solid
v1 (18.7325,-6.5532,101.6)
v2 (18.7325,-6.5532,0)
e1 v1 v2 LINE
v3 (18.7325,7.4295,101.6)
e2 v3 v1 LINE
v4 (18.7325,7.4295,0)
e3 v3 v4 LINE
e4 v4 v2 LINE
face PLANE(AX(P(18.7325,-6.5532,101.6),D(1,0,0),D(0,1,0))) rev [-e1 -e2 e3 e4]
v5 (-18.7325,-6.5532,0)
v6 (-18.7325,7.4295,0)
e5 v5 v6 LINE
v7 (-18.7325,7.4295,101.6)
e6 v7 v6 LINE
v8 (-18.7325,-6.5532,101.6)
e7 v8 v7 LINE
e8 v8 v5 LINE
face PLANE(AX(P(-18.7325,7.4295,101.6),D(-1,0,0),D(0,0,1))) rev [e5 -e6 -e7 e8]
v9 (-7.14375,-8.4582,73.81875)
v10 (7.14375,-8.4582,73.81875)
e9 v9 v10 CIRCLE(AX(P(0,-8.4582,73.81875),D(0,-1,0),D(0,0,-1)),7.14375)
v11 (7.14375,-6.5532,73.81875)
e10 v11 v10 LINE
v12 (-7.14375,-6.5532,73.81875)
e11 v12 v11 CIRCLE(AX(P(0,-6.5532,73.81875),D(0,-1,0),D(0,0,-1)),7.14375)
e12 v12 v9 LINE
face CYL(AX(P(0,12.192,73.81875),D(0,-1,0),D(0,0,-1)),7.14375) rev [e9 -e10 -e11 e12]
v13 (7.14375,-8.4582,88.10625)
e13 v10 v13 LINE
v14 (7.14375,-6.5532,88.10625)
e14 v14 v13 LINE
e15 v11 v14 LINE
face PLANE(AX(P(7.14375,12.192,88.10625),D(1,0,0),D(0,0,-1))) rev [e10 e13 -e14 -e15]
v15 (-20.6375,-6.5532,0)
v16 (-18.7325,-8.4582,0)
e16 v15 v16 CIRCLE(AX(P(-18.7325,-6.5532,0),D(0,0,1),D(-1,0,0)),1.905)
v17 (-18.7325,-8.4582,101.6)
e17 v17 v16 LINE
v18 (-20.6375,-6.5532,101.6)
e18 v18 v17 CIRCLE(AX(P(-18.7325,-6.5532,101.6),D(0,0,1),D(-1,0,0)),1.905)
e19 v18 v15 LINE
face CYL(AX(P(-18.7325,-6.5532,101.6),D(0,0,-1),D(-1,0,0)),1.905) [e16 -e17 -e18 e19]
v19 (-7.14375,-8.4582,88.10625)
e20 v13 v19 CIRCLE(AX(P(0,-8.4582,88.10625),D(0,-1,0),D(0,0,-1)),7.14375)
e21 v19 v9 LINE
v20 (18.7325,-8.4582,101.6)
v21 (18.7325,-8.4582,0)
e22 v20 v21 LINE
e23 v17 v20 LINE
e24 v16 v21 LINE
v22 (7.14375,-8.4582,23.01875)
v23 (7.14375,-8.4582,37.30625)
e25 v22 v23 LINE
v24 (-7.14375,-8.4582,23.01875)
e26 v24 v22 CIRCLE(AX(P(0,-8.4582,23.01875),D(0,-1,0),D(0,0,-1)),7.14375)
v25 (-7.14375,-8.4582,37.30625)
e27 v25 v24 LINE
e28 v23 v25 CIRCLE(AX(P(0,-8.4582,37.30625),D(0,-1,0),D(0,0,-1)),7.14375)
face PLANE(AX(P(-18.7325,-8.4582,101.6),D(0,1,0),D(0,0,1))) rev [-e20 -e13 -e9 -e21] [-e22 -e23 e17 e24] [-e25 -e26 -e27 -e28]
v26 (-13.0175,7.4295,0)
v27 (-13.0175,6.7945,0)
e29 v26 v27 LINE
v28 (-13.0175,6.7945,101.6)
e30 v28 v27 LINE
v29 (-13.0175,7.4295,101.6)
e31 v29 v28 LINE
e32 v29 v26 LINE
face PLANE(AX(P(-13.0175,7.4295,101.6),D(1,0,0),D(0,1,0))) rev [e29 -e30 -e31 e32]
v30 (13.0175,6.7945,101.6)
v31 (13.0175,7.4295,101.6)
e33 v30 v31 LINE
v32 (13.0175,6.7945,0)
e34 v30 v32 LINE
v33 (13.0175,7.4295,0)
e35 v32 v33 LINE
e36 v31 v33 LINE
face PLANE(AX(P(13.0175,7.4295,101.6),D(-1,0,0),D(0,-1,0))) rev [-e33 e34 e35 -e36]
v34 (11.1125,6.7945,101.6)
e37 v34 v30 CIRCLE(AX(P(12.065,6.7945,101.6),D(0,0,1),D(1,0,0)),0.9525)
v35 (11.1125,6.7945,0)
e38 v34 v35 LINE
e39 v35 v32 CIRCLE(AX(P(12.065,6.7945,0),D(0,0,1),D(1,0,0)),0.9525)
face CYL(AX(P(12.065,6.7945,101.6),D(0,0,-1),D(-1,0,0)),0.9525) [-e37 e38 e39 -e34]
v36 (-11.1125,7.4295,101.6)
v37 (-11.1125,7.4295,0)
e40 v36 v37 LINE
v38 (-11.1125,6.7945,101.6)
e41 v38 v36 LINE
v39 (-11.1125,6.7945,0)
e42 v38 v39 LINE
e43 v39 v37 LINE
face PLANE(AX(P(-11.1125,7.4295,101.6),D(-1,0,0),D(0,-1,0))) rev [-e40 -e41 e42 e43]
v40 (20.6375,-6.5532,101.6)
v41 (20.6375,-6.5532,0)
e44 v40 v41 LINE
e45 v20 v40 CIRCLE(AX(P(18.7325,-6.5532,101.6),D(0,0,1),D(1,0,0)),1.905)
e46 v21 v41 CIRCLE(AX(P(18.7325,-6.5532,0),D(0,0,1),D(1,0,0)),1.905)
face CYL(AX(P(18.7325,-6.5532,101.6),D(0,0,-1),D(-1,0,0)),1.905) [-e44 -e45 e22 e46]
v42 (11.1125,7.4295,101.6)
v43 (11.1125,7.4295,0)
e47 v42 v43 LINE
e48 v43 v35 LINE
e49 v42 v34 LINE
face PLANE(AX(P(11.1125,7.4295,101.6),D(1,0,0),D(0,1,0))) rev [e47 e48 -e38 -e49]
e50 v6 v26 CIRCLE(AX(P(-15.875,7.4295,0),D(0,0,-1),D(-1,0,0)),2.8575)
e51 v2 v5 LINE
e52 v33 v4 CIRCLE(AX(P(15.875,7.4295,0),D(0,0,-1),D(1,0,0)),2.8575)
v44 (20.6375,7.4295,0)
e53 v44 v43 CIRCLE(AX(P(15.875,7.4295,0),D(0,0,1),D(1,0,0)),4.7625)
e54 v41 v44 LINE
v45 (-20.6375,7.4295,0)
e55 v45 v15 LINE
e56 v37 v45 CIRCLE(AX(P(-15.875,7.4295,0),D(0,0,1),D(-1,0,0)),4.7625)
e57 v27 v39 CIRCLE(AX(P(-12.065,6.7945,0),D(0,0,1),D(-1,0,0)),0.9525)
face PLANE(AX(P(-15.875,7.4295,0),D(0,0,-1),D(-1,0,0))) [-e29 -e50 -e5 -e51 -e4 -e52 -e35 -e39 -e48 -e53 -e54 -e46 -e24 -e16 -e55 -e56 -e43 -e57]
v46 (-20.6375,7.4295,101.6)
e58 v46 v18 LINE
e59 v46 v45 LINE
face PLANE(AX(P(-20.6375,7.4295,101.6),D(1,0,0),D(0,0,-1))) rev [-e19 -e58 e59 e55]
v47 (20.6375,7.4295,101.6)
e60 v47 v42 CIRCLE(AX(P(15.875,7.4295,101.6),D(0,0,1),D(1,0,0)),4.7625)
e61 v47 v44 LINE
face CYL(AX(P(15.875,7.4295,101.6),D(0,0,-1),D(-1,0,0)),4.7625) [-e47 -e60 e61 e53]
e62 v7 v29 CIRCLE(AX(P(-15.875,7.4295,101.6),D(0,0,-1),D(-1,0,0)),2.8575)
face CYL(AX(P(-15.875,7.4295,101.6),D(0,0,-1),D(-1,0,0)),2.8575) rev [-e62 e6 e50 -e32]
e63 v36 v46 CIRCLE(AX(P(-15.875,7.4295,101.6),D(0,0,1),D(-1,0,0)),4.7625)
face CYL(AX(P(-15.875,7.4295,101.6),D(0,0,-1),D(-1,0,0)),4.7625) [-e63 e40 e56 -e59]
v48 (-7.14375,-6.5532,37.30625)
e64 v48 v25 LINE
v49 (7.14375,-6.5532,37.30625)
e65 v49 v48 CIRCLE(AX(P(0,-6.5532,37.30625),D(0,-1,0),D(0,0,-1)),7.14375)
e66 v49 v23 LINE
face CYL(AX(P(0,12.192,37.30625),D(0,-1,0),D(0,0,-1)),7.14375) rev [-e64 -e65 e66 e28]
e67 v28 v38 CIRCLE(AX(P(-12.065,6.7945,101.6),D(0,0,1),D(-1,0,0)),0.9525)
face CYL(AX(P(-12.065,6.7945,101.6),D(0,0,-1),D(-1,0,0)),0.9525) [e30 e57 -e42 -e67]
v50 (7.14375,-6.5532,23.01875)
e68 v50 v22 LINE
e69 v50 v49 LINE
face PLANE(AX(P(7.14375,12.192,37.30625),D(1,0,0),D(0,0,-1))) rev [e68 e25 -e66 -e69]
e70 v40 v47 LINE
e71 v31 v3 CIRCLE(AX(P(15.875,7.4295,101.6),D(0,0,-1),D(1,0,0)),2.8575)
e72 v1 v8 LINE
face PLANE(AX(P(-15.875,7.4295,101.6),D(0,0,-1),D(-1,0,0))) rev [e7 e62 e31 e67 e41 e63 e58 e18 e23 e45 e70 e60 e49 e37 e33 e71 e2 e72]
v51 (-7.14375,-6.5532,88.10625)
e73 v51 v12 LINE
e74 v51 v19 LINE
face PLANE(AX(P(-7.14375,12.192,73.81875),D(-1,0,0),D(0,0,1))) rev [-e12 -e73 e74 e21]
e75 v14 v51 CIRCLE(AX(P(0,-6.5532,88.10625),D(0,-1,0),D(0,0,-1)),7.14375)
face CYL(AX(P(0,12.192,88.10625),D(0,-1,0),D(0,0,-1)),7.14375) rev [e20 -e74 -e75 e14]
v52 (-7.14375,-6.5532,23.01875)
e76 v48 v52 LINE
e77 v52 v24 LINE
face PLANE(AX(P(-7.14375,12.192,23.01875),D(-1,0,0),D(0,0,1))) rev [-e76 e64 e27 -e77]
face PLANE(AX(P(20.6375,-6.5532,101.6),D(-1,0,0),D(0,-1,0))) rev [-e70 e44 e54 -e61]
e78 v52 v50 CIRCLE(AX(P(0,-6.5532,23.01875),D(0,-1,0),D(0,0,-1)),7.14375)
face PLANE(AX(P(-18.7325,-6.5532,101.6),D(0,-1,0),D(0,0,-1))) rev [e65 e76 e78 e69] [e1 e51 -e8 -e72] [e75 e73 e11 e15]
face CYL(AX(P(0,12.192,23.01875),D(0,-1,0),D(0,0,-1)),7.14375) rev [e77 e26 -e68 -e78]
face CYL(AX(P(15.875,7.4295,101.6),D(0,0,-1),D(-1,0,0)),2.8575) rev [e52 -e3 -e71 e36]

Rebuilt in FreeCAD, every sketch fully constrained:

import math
import FreeCAD as App
import Part
import Sketcher

V = App.Vector
Q = App.Units.Quantity

doc = App.newDocument("Part")
body = doc.addObject("PartDesign::Body", "Body")

# Sketch on XY plane
sketch1 = body.newObject("Sketcher::SketchObject", "Sketch")
sketch1.AttachmentSupport = (doc.getObject("XY_Plane"), [""])
sketch1.MapMode = "FlatFace"
sketch1.addGeometry(Part.LineSegment(V(-20.6, 7.4, 0), V(-20.6, -6.6, 0)), False)
sketch1.addGeometry(Part.ArcOfCircle(Part.Circle(V(-18.7, -6.6, 0), V(0, 0, 1), 1.9), math.radians(-180), math.radians(-90)), False)
sketch1.addGeometry(Part.LineSegment(V(-18.7, -8.5, 0), V(18.7, -8.5, 0)), False)
sketch1.addGeometry(Part.ArcOfCircle(Part.Circle(V(18.7, -6.6, 0), V(0, 0, 1), 1.9), math.radians(-90), math.radians(0)), False)
sketch1.addGeometry(Part.LineSegment(V(20.6, -6.6, 0), V(20.6, 7.4, 0)), False)
sketch1.addGeometry(Part.ArcOfCircle(Part.Circle(V(15.9, 7.4, 0), V(0, 0, 1), 4.8), math.radians(0), math.radians(180)), False)
sketch1.addGeometry(Part.LineSegment(V(11.1, 7.4, 0), V(11.1, 6.8, 0)), False)
sketch1.addGeometry(Part.ArcOfCircle(Part.Circle(V(12.1, 6.8, 0), V(0, 0, 1), 1), math.radians(180), math.radians(360)), False)
sketch1.addGeometry(Part.LineSegment(V(13, 6.8, 0), V(13, 7.4, 0)), False)
sketch1.addGeometry(Part.ArcOfCircle(Part.Circle(V(15.9, 7.4, 0), V(0, 0, 1), 2.9), math.radians(0), math.radians(180)), False)
sketch1.addGeometry(Part.LineSegment(V(18.7, 7.4, 0), V(18.7, -6.6, 0)), False)
sketch1.addGeometry(Part.LineSegment(V(18.7, -6.6, 0), V(-18.7, -6.6, 0)), False)
sketch1.addGeometry(Part.LineSegment(V(-18.7, -6.6, 0), V(-18.7, 7.4, 0)), False)
sketch1.addGeometry(Part.ArcOfCircle(Part.Circle(V(-15.9, 7.4, 0), V(0, 0, 1), 2.9), math.radians(0), math.radians(180)), False)
sketch1.addGeometry(Part.LineSegment(V(-13, 7.4, 0), V(-13, 6.8, 0)), False)
sketch1.addGeometry(Part.ArcOfCircle(Part.Circle(V(-12.1, 6.8, 0), V(0, 0, 1), 1), math.radians(180), math.radians(360)), False)
sketch1.addGeometry(Part.LineSegment(V(-11.1, 6.8, 0), V(-11.1, 7.4, 0)), False)
sketch1.addGeometry(Part.ArcOfCircle(Part.Circle(V(-15.9, 7.4, 0), V(0, 0, 1), 4.8), math.radians(0), math.radians(180)), False)
sketch1.addConstraint(Sketcher.Constraint("Tangent", 0, 2, 1, 1))
sketch1.addConstraint(Sketcher.Constraint("Tangent", 1, 2, 2, 1))
sketch1.addConstraint(Sketcher.Constraint("Tangent", 2, 2, 3, 1))
sketch1.addConstraint(Sketcher.Constraint("Tangent", 3, 2, 4, 1))
sketch1.addConstraint(Sketcher.Constraint("Tangent", 4, 2, 5, 1))
sketch1.addConstraint(Sketcher.Constraint("Tangent", 5, 2, 6, 1))
sketch1.addConstraint(Sketcher.Constraint("Tangent", 6, 2, 7, 1))
sketch1.addConstraint(Sketcher.Constraint("Tangent", 7, 2, 8, 1))
sketch1.addConstraint(Sketcher.Constraint("Tangent", 8, 2, 9, 2))
sketch1.addConstraint(Sketcher.Constraint("Tangent", 9, 1, 10, 1))
sketch1.addConstraint(Sketcher.Constraint("Coincident", 10, 2, 11, 1))
sketch1.addConstraint(Sketcher.Constraint("Coincident", 11, 2, 12, 1))
sketch1.addConstraint(Sketcher.Constraint("Tangent", 12, 2, 13, 2))
sketch1.addConstraint(Sketcher.Constraint("Tangent", 13, 1, 14, 1))
sketch1.addConstraint(Sketcher.Constraint("Tangent", 14, 2, 15, 1))
sketch1.addConstraint(Sketcher.Constraint("Tangent", 15, 2, 16, 1))
sketch1.addConstraint(Sketcher.Constraint("Tangent", 16, 2, 17, 1))
sketch1.addConstraint(Sketcher.Constraint("Tangent", 17, 2, 0, 1))
sketch1.addConstraint(Sketcher.Constraint("Vertical", 0))
sketch1.addConstraint(Sketcher.Constraint("Horizontal", 2))
sketch1.addConstraint(Sketcher.Constraint("Vertical", 4))
sketch1.addConstraint(Sketcher.Constraint("Vertical", 6))
sketch1.addConstraint(Sketcher.Constraint("Vertical", 8))
sketch1.addConstraint(Sketcher.Constraint("Vertical", 10))
sketch1.addConstraint(Sketcher.Constraint("Horizontal", 11))
sketch1.addConstraint(Sketcher.Constraint("Vertical", 12))
sketch1.addConstraint(Sketcher.Constraint("Vertical", 14))
sketch1.addConstraint(Sketcher.Constraint("Vertical", 16))
sketch1.addConstraint(Sketcher.Constraint("Coincident", 9, 3, 5, 3))
sketch1.addConstraint(Sketcher.Constraint("Coincident", 17, 3, 13, 3))
sketch1.addConstraint(Sketcher.Constraint("Coincident", 10, 2, 3, 3))
sketch1.addConstraint(Sketcher.Constraint("Coincident", 11, 2, 1, 3))
sketch1.addConstraint(Sketcher.Constraint("Equal", 9, 13))
sketch1.addConstraint(Sketcher.Constraint("Symmetric", 5, 3, 13, 3, -2))
sketch1.addConstraint(Sketcher.Constraint("Horizontal", 7, 3, 15, 3))
sketch1.addConstraint(Sketcher.Constraint("Radius", 1, Q("0.075 in")))
sketch1.addConstraint(Sketcher.Constraint("Radius", 5, Q("0.1875 in")))
sketch1.addConstraint(Sketcher.Constraint("DistanceX", 13, 3, 7, 3, Q("1.1 in")))
sketch1.addConstraint(Sketcher.Constraint("DistanceY", 6, 2, 6, 1, Q("0.025 in")))
sketch1.addConstraint(Sketcher.Constraint("DistanceY", 0, 2, 0, 1, Q("0.5505 in")))
sketch1.addConstraint(Sketcher.Constraint("DistanceY", 1, 3, -1, 1, Q("0.258 in")))
pad1 = body.newObject("PartDesign::Pad", "Pad")
pad1.Profile = sketch1
pad1.Length = Q("4 in")

# Sketch on XZ plane
sketch2 = body.newObject("Sketcher::SketchObject", "Sketch001")
sketch2.AttachmentSupport = (doc.getObject("XZ_Plane"), [""])
sketch2.MapMode = "FlatFace"
sketch2.AttachmentOffset = App.Placement(V(0, 0, 0.333 * 25.4), App.Rotation())
sketch2.addGeometry(Part.LineSegment(V(7, 23, 0), V(7, 37, 0)), False)
sketch2.addGeometry(Part.ArcOfCircle(Part.Circle(V(0, 37, 0), V(0, 0, 1), 7), math.radians(0), math.radians(180)), False)
sketch2.addGeometry(Part.LineSegment(V(-7, 37, 0), V(-7, 23, 0)), False)
sketch2.addGeometry(Part.ArcOfCircle(Part.Circle(V(0, 23, 0), V(0, 0, 1), 7), math.radians(180), math.radians(360)), False)
sketch2.addConstraint(Sketcher.Constraint("Tangent", 0, 2, 1, 1))
sketch2.addConstraint(Sketcher.Constraint("Tangent", 1, 2, 2, 1))
sketch2.addConstraint(Sketcher.Constraint("Tangent", 2, 2, 3, 1))
sketch2.addConstraint(Sketcher.Constraint("Tangent", 3, 2, 0, 1))
sketch2.addConstraint(Sketcher.Constraint("Vertical", 0))
sketch2.addConstraint(Sketcher.Constraint("Vertical", 2))
sketch2.addConstraint(Sketcher.Constraint("PointOnObject", 1, 3, -2))
sketch2.addConstraint(Sketcher.Constraint("Radius", 1, Q("0.28125 in")))
sketch2.addConstraint(Sketcher.Constraint("DistanceY", 0, 1, 0, 2, Q("0.5625 in")))
sketch2.addConstraint(Sketcher.Constraint("DistanceY", -1, 1, 1, 3, Q("1.46875 in")))
pocket1 = body.newObject("PartDesign::Pocket", "Pocket")
pocket1.Profile = sketch2
pocket1.Type = "ThroughAll"
doc.recompute()

linearpattern = body.newObject("PartDesign::LinearPattern", "LinearPattern")
linearpattern.Originals = [pocket1]
linearpattern.Direction = (doc.getObject("Z_Axis"), [""])
linearpattern.Mode = "offset"
linearpattern.Offset = Q("2 in")
linearpattern.Occurrences = 2
body.Tip = linearpattern

doc.recompute()
